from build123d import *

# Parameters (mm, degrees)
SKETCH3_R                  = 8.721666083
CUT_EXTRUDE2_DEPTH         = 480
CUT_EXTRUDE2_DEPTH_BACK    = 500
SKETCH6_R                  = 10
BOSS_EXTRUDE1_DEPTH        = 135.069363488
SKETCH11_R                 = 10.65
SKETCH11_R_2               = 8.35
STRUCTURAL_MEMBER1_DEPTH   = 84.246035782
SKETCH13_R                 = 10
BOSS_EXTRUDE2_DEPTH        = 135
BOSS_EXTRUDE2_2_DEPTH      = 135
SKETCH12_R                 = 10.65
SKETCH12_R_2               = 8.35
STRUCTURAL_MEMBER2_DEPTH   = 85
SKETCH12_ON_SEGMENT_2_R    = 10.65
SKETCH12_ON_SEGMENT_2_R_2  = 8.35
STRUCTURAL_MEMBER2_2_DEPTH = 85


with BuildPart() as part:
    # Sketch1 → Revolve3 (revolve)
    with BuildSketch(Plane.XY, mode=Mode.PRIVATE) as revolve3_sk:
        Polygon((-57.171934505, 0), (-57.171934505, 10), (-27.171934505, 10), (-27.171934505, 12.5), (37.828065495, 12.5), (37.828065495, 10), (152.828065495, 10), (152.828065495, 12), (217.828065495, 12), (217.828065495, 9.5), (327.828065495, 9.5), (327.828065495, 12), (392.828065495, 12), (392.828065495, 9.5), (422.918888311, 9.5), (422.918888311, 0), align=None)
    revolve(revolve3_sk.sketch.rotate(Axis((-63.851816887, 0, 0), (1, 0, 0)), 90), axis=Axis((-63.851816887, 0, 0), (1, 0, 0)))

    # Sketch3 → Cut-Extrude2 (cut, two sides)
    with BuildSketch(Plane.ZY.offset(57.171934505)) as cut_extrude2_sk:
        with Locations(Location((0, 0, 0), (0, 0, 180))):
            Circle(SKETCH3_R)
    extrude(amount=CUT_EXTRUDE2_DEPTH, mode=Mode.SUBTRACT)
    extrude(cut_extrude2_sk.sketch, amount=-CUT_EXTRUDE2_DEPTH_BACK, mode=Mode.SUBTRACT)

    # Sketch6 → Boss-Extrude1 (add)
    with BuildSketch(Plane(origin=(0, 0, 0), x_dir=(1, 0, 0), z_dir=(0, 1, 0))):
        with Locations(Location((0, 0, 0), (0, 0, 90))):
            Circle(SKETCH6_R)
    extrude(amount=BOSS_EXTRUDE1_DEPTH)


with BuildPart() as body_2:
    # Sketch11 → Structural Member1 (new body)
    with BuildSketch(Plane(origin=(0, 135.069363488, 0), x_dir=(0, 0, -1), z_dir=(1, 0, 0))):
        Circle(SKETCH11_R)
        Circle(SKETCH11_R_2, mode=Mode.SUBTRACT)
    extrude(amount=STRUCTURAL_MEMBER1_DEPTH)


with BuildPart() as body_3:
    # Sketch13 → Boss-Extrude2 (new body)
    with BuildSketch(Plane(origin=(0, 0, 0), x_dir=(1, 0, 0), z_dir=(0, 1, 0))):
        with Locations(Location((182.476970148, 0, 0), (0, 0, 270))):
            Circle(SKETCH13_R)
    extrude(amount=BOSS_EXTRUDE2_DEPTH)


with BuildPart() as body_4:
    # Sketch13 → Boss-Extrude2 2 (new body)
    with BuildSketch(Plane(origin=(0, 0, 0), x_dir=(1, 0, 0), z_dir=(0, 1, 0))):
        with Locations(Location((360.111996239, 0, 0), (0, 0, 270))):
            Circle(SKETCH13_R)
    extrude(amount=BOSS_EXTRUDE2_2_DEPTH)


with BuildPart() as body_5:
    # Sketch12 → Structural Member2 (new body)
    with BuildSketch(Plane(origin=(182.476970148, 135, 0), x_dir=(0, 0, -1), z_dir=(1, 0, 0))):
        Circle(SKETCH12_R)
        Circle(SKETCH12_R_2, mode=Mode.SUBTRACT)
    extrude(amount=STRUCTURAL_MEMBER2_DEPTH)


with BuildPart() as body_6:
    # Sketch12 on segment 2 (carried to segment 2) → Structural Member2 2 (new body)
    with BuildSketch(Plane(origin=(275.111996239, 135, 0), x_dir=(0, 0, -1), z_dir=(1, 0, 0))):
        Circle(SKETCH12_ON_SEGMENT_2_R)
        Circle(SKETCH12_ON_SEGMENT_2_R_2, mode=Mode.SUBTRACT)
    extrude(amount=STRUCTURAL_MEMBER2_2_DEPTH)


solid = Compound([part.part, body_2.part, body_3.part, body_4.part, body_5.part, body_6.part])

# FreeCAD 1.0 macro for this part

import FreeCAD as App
import Part
import Sketcher

V = App.Vector


def add_polygon(sketch, points):
    """Adds a closed chain of lines whose ends are joined by coincident constraints."""
    first, n = sketch.GeometryCount, len(points)
    for a, b in zip(points, points[1:] + points[:1]):
        sketch.addGeometry(Part.LineSegment(App.Vector(*a, 0), App.Vector(*b, 0)), False)
    for i in range(n):
        sketch.addConstraint(Sketcher.Constraint("Coincident", first + i, 2, first + (i + 1) % n, 1))

doc = App.newDocument("Part")
body = doc.addObject("PartDesign::Body", "Body")

# Sketch on XY plane
sketch1 = doc.addObject("Sketcher::SketchObject", "Sketch")
body.addObject(sketch1)
sketch1.AttachmentSupport = (doc.XY_Plane, [""])
sketch1.MapMode = "FlatFace"
add_polygon(sketch1, [(-57.171935, 10), (-57.171935, 0), (422.918888, 0), (422.918888, 9.5), (392.828065, 9.5), (392.828065, 12), (327.828065, 12), (327.828065, 9.5), (217.828065, 9.5), (217.828065, 12), (152.828065, 12), (152.828065, 10), (37.828065, 10), (37.828065, 12.5), (-27.171935, 12.5), (-27.171935, 10)])  # lines 0-15
sketch1.addConstraint(Sketcher.Constraint("Vertical", 0))
sketch1.addConstraint(Sketcher.Constraint("Horizontal", 1))
sketch1.addConstraint(Sketcher.Constraint("Vertical", 2))
sketch1.addConstraint(Sketcher.Constraint("Horizontal", 3))
sketch1.addConstraint(Sketcher.Constraint("Vertical", 4))
sketch1.addConstraint(Sketcher.Constraint("Horizontal", 5))
sketch1.addConstraint(Sketcher.Constraint("Vertical", 6))
sketch1.addConstraint(Sketcher.Constraint("Horizontal", 7))
sketch1.addConstraint(Sketcher.Constraint("Vertical", 8))
sketch1.addConstraint(Sketcher.Constraint("Horizontal", 9))
sketch1.addConstraint(Sketcher.Constraint("Vertical", 10))
sketch1.addConstraint(Sketcher.Constraint("Horizontal", 11))
sketch1.addConstraint(Sketcher.Constraint("Vertical", 12))
sketch1.addConstraint(Sketcher.Constraint("Horizontal", 13))
sketch1.addConstraint(Sketcher.Constraint("Vertical", 14))
sketch1.addConstraint(Sketcher.Constraint("Horizontal", 15))
sketch1.addConstraint(Sketcher.Constraint("PointOnObject", 0, 2, -1))
sketch1.addConstraint(Sketcher.Constraint("Horizontal", 3, 2, 6, 2))
sketch1.addConstraint(Sketcher.Constraint("Horizontal", 5, 2, 8, 2))
sketch1.addConstraint(Sketcher.Constraint("Horizontal", 11, 2, 14, 2))
sketch1.addConstraint(Sketcher.Constraint("Equal", 5, 9))
sketch1.addConstraint(Sketcher.Constraint("Equal", 9, 13))
sketch1.addConstraint(Sketcher.Constraint("Equal", 8, 12))
sketch1.addConstraint(Sketcher.Constraint("DistanceX", 5, 2, 5, 1, 65.0))
sketch1.addConstraint(Sketcher.Constraint("DistanceX", 7, 2, 7, 1, 110.0))
sketch1.addConstraint(Sketcher.Constraint("DistanceX", 11, 2, 11, 1, 115.0))
sketch1.addConstraint(Sketcher.Constraint("DistanceX", 15, 2, 15, 1, 30.0))
sketch1.addConstraint(Sketcher.Constraint("DistanceY", 0, 2, 0, 1, 10.0))
sketch1.addConstraint(Sketcher.Constraint("DistanceY", 10, 2, 10, 1, 2.0))
sketch1.addConstraint(Sketcher.Constraint("DistanceY", 2, 1, 2, 2, 9.5))
sketch1.addConstraint(Sketcher.Constraint("DistanceX", 1, 1, 1, 2, 480.090823))
sketch1.addConstraint(Sketcher.Constraint("DistanceX", -1, 1, 1, 2, 422.918888))
revolution = doc.addObject("PartDesign::Revolution", "Revolution")
body.addObject(revolution)
revolution.Profile = sketch1
revolution.ReferenceAxis = (sketch1, ["H_Axis"])
revolution.Angle = 360

# Sketch on YZ plane
sketch2 = doc.addObject("Sketcher::SketchObject", "Sketch001")
body.addObject(sketch2)
sketch2.AttachmentSupport = (doc.YZ_Plane, [""])
sketch2.MapMode = "FlatFace"
sketch2.AttachmentOffset = App.Placement(V(0, 0, -57.171935), App.Rotation())
sketch2.addGeometry(Part.Circle(V(0, 0, 0), V(0, 0, 1), 8.721666), False)
sketch2.addConstraint(Sketcher.Constraint("Coincident", 0, 3, -1, 1))
sketch2.addConstraint(Sketcher.Constraint("Diameter", 0, 17.443332))
pocket1 = doc.addObject("PartDesign::Pocket", "Pocket")
body.addObject(pocket1)
pocket1.Profile = sketch2
pocket1.Type = "ThroughAll"
pocket1.Midplane = True

# Sketch on XZ plane
sketch3 = doc.addObject("Sketcher::SketchObject", "Sketch002")
body.addObject(sketch3)
sketch3.AttachmentSupport = (doc.XZ_Plane, [""])
sketch3.MapMode = "FlatFace"
sketch3.addGeometry(Part.Circle(V(0, 0, 0), V(0, 0, 1), 10), False)
sketch3.addConstraint(Sketcher.Constraint("Coincident", 0, 3, -1, 1))
sketch3.addConstraint(Sketcher.Constraint("Diameter", 0, 20.0))
pad1 = doc.addObject("PartDesign::Pad", "Pad")
body.addObject(pad1)
pad1.Profile = sketch3
pad1.Length = 135.069363
pad1.Reversed = True
body2 = doc.addObject("PartDesign::Body", "Body001")

# Sketch on YZ plane
sketch4 = doc.addObject("Sketcher::SketchObject", "Sketch003")
body2.addObject(sketch4)
sketch4.AttachmentSupport = (doc.getObject("YZ_Plane001"), [""])
sketch4.MapMode = "FlatFace"
sketch4.addGeometry(Part.Circle(V(135.069363, 0, 0), V(0, 0, 1), 10.65), False)
sketch4.addGeometry(Part.Circle(V(135.069363, 0, 0), V(0, 0, 1), 8.35), False)
sketch4.addConstraint(Sketcher.Constraint("Coincident", 1, 3, 0, 3))
sketch4.addConstraint(Sketcher.Constraint("PointOnObject", 0, 3, -1))
sketch4.addConstraint(Sketcher.Constraint("Diameter", 0, 21.3))
sketch4.addConstraint(Sketcher.Constraint("Diameter", 1, 16.7))
sketch4.addConstraint(Sketcher.Constraint("DistanceX", -1, 1, 0, 3, 135.069363))
pad2 = doc.addObject("PartDesign::Pad", "Pad001")
body2.addObject(pad2)
pad2.Profile = sketch4
pad2.Length = 84.246036
body3 = doc.addObject("PartDesign::Body", "Body002")

# Sketch on XZ plane
sketch5 = doc.addObject("Sketcher::SketchObject", "Sketch004")
body3.addObject(sketch5)
sketch5.AttachmentSupport = (doc.getObject("XZ_Plane002"), [""])
sketch5.MapMode = "FlatFace"
sketch5.addGeometry(Part.Circle(V(182.47697, 0, 0), V(0, 0, 1), 10), False)
sketch5.addConstraint(Sketcher.Constraint("PointOnObject", 0, 3, -1))
sketch5.addConstraint(Sketcher.Constraint("Diameter", 0, 20.0))
sketch5.addConstraint(Sketcher.Constraint("DistanceX", -1, 1, 0, 3, 182.47697))
pad3 = doc.addObject("PartDesign::Pad", "Pad002")
body3.addObject(pad3)
pad3.Profile = sketch5
pad3.Length = 135
pad3.Reversed = True
body4 = doc.addObject("PartDesign::Body", "Body003")

# Sketch on XZ plane
sketch6 = doc.addObject("Sketcher::SketchObject", "Sketch005")
body4.addObject(sketch6)
sketch6.AttachmentSupport = (doc.getObject("XZ_Plane003"), [""])
sketch6.MapMode = "FlatFace"
sketch6.addGeometry(Part.Circle(V(360.111996, 0, 0), V(0, 0, 1), 10), False)
sketch6.addConstraint(Sketcher.Constraint("PointOnObject", 0, 3, -1))
sketch6.addConstraint(Sketcher.Constraint("Diameter", 0, 20.0))
sketch6.addConstraint(Sketcher.Constraint("DistanceX", -1, 1, 0, 3, 360.111996))
pad4 = doc.addObject("PartDesign::Pad", "Pad003")
body4.addObject(pad4)
pad4.Profile = sketch6
pad4.Length = 135
pad4.Reversed = True
body5 = doc.addObject("PartDesign::Body", "Body004")

# Sketch on YZ plane
sketch7 = doc.addObject("Sketcher::SketchObject", "Sketch006")
body5.addObject(sketch7)
sketch7.AttachmentSupport = (doc.getObject("YZ_Plane004"), [""])
sketch7.MapMode = "FlatFace"
sketch7.AttachmentOffset = App.Placement(V(0, 0, 182.47697), App.Rotation())
sketch7.addGeometry(Part.Circle(V(135, 0, 0), V(0, 0, 1), 10.65), False)
sketch7.addGeometry(Part.Circle(V(135, 0, 0), V(0, 0, 1), 8.35), False)
sketch7.addConstraint(Sketcher.Constraint("Coincident", 1, 3, 0, 3))
sketch7.addConstraint(Sketcher.Constraint("PointOnObject", 0, 3, -1))
sketch7.addConstraint(Sketcher.Constraint("Diameter", 0, 21.3))
sketch7.addConstraint(Sketcher.Constraint("Diameter", 1, 16.7))
sketch7.addConstraint(Sketcher.Constraint("DistanceX", -1, 1, 0, 3, 135.0))
pad5 = doc.addObject("PartDesign::Pad", "Pad004")
body5.addObject(pad5)
pad5.Profile = sketch7
pad5.Length = 85
body6 = doc.addObject("PartDesign::Body", "Body005")

# Sketch on YZ plane
sketch8 = doc.addObject("Sketcher::SketchObject", "Sketch007")
body6.addObject(sketch8)
sketch8.AttachmentSupport = (doc.getObject("YZ_Plane005"), [""])
sketch8.MapMode = "FlatFace"
sketch8.AttachmentOffset = App.Placement(V(0, 0, 275.111996), App.Rotation())
sketch8.addGeometry(Part.Circle(V(135, 0, 0), V(0, 0, 1), 10.65), False)
sketch8.addGeometry(Part.Circle(V(135, 0, 0), V(0, 0, 1), 8.35), False)
sketch8.addConstraint(Sketcher.Constraint("Coincident", 1, 3, 0, 3))
sketch8.addConstraint(Sketcher.Constraint("PointOnObject", 0, 3, -1))
sketch8.addConstraint(Sketcher.Constraint("Diameter", 0, 21.3))
sketch8.addConstraint(Sketcher.Constraint("Diameter", 1, 16.7))
sketch8.addConstraint(Sketcher.Constraint("DistanceX", -1, 1, 0, 3, 135.0))
pad6 = doc.addObject("PartDesign::Pad", "Pad005")
body6.addObject(pad6)
pad6.Profile = sketch8
pad6.Length = 85

doc.recompute()
